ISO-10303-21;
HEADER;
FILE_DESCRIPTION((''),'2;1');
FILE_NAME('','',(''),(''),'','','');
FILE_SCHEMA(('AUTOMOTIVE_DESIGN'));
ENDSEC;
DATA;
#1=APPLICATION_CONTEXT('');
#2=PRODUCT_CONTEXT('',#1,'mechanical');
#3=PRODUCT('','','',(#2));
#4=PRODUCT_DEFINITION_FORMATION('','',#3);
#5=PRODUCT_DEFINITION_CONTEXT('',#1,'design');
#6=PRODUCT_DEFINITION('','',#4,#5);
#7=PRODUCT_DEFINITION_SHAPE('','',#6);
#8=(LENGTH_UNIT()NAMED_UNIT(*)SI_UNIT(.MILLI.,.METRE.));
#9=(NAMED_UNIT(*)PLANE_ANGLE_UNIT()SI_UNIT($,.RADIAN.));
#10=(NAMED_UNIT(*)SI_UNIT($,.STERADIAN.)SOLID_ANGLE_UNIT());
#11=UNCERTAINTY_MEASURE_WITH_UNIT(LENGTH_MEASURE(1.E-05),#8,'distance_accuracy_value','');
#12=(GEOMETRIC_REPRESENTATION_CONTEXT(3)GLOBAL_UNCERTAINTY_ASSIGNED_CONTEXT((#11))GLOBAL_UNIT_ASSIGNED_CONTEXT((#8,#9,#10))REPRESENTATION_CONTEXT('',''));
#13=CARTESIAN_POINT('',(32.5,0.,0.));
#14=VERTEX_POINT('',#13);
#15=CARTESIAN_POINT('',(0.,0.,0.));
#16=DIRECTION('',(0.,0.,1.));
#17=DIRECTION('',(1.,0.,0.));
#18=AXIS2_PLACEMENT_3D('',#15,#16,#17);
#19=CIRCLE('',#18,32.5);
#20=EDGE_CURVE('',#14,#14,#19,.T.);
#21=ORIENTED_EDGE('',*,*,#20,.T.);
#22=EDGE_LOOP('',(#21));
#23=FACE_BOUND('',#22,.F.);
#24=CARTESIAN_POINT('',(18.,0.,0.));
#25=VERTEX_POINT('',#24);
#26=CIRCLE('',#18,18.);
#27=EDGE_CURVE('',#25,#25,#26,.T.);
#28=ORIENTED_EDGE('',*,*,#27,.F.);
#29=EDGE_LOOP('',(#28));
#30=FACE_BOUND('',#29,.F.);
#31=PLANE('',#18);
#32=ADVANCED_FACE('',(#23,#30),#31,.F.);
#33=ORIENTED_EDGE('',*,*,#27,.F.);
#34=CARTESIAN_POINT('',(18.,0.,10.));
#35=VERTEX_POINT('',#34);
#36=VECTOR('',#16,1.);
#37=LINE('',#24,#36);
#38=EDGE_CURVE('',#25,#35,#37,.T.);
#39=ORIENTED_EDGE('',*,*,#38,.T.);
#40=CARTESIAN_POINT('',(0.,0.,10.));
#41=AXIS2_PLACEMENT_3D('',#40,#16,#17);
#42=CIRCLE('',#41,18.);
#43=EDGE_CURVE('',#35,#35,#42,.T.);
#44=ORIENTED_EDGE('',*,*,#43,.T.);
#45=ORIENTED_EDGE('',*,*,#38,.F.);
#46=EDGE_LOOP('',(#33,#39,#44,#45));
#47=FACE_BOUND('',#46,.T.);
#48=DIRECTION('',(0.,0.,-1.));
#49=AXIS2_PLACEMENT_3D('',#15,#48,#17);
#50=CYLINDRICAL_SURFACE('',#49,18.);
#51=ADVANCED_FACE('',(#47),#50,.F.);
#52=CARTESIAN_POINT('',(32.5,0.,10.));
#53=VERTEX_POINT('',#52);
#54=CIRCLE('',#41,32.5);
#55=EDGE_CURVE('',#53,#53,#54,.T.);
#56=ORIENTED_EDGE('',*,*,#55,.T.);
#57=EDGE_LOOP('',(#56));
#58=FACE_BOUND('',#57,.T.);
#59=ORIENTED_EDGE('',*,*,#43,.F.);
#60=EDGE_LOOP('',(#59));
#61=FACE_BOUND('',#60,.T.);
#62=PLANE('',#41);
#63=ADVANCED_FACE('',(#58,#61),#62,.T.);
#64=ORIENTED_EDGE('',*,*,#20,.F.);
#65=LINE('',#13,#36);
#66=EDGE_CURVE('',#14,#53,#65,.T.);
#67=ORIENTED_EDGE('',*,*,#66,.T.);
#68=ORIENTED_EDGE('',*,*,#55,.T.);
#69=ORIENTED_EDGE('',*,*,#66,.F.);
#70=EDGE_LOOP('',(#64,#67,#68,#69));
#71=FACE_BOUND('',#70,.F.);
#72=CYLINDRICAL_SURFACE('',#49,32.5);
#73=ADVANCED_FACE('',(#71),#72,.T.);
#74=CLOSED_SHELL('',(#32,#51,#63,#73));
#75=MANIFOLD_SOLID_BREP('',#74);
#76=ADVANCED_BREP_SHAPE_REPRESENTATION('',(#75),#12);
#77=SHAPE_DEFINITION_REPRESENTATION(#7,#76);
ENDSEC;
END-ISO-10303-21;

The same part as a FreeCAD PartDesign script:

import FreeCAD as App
import Part
import Sketcher
from FreeCAD import Vector

doc = App.newDocument("Part")
body = doc.addObject("PartDesign::Body", "Body")

# Sketch on XY plane
sketch1 = body.newObject("Sketcher::SketchObject", "Sketch")
sketch1.AttachmentSupport = (doc.getObject("XY_Plane"), [""])
sketch1.MapMode = "FlatFace"
sketch1.addGeometry(Part.Circle(Vector(0, 0, 0), Vector(0, 0, 1), 32.5), False)
sketch1.addGeometry(Part.Circle(Vector(0, 0, 0), Vector(0, 0, 1), 18), False)
sketch1.addConstraint(Sketcher.Constraint("Coincident", 0, 3, -1, 1))
sketch1.addConstraint(Sketcher.Constraint("Coincident", 1, 3, -1, 1))
sketch1.addConstraint(Sketcher.Constraint("Diameter", 0, 65.0))
sketch1.addConstraint(Sketcher.Constraint("Diameter", 1, 36.0))
pad1 = body.newObject("PartDesign::Pad", "Pad")
pad1.Profile = sketch1
pad1.Length = 10

doc.recompute()
